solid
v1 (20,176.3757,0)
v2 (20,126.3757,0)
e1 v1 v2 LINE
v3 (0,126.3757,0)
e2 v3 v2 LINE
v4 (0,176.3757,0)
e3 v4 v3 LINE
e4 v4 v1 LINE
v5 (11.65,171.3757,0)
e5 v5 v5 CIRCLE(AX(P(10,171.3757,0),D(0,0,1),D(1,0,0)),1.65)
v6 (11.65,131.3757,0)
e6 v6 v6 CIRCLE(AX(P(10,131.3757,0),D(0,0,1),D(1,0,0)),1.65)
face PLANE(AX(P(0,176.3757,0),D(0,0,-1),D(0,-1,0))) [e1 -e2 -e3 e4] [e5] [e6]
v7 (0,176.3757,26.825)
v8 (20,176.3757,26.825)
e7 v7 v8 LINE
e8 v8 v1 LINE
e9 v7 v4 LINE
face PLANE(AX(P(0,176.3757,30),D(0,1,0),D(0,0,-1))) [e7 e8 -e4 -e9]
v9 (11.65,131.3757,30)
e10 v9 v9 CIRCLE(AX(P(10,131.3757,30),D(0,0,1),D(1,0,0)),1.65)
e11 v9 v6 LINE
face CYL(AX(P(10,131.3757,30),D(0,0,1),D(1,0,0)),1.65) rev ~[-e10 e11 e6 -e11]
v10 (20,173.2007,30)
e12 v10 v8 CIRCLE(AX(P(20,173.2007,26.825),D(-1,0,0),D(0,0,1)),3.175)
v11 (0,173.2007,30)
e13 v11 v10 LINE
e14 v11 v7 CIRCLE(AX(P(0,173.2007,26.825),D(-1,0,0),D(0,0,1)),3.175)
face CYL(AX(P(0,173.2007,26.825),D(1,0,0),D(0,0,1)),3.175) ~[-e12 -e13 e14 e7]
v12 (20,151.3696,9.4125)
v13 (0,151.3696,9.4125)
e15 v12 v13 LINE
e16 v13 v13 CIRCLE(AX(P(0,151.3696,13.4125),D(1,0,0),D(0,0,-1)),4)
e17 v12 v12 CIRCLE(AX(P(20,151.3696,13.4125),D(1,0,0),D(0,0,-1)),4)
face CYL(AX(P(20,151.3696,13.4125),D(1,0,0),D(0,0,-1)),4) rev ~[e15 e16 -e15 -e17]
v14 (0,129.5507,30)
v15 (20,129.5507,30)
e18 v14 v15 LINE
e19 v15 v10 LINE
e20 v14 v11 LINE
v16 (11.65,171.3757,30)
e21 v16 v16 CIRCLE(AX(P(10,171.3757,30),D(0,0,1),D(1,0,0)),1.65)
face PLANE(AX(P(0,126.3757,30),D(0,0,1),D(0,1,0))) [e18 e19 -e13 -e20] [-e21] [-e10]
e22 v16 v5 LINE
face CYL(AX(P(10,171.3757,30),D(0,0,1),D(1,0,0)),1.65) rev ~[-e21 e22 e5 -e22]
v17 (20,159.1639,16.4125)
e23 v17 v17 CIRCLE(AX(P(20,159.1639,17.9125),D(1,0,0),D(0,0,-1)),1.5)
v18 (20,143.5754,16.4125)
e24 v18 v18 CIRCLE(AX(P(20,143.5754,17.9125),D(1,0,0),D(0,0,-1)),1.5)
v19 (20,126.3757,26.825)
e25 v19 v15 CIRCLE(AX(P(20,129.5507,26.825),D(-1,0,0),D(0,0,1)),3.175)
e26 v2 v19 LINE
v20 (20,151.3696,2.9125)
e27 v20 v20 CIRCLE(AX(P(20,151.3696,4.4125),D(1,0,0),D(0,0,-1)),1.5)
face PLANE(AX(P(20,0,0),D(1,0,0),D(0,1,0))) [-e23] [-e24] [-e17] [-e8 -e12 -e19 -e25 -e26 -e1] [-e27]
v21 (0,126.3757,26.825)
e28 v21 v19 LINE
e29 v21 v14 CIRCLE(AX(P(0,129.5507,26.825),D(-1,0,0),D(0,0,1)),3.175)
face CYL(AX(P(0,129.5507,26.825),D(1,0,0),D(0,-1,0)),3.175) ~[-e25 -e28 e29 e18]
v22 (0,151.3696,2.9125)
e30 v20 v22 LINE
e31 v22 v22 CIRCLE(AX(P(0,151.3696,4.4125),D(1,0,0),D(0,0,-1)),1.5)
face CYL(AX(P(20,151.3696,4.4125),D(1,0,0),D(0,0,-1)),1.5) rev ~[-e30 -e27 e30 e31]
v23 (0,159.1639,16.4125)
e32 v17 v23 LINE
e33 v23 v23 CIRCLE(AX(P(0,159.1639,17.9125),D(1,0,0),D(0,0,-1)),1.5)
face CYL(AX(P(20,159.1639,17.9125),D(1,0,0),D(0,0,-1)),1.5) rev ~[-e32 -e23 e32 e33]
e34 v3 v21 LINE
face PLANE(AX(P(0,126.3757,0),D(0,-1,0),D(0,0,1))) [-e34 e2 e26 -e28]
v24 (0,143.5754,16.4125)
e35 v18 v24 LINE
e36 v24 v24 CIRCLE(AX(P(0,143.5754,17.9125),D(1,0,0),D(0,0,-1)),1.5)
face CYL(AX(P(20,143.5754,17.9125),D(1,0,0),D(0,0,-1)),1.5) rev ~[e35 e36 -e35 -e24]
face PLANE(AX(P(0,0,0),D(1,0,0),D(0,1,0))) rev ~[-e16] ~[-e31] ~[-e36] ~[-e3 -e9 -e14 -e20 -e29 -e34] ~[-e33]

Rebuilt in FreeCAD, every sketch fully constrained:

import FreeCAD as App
import Part
import Sketcher
Q = App.Units.Quantity


def edges_at(feature, points):
    """Names of the edges that pass closest to the given points."""
    edges = feature.Shape.Edges
    near = lambda p: min(range(len(edges)), key=lambda i: edges[i].distToShape(Part.Vertex(*p))[0])
    return sorted({f"Edge{near(p) + 1}" for p in points})


def add_polygon(sketch, points):
    """Adds a closed chain of lines whose ends are joined by coincident constraints."""
    first, n = sketch.GeometryCount, len(points)
    for a, b in zip(points, points[1:] + points[:1]):
        sketch.addGeometry(Part.LineSegment(App.Vector(*a, 0), App.Vector(*b, 0)), False)
    for i in range(n):
        sketch.addConstraint(Sketcher.Constraint("Coincident", first + i, 2, first + (i + 1) % n, 1))

doc = App.newDocument("Part")
body = doc.addObject("PartDesign::Body", "Body")

sketch1 = body.newObject("Sketcher::SketchObject", "Sketch")
sketch1.AttachmentSupport = (doc.getObject("YZ_Plane"), [""])
sketch1.MapMode = "FlatFace"
add_polygon(sketch1, [(126, 0), (176, 0), (176, 30), (126, 30)])
sketch1.addConstraint([
    Sketcher.Constraint("Horizontal", 0),
    Sketcher.Constraint("Vertical", 1),
    Sketcher.Constraint("Horizontal", 2),
    Sketcher.Constraint("Vertical", 3),
    Sketcher.Constraint("PointOnObject", 0, 2, -1),
    Sketcher.Constraint("DistanceX", 0, 1, 0, 2, Q("50 mm")),
    Sketcher.Constraint("DistanceY", 1, 1, 1, 2, Q("30 mm")),
    Sketcher.Constraint("DistanceX", -1, 1, 0, 2, Q("176.3757 mm")),
])
pad1 = body.newObject("PartDesign::Pad", "Pad")
pad1.Profile = sketch1
pad1.Length = 20
doc.recompute()

fillet = body.newObject("PartDesign::Fillet", "Fillet")
fillet.Base = (pad1, edges_at(pad1, [(10, 126.376, 30), (10, 176.376, 30)]))
fillet.Radius = 3.175

sketch2 = body.newObject("Sketcher::SketchObject", "Sketch001")
sketch2.AttachmentSupport = (doc.getObject("XY_Plane"), [""])
sketch2.MapMode = "FlatFace"
sketch2.AttachmentOffset = App.Placement(App.Vector(0, 0, 30), App.Rotation())
sketch2.addGeometry([
    Part.Circle(App.Vector(10, 171.4, 0), App.Vector(0, 0, 1), 1.6),
    Part.Circle(App.Vector(10, 131.4, 0), App.Vector(0, 0, 1), 1.6),
], False)
sketch2.addConstraint([
    Sketcher.Constraint("Equal", 0, 1),
    Sketcher.Constraint("Vertical", 0, 3, 1, 3),
    Sketcher.Constraint("Diameter", 0, Q("3.3 mm")),
    Sketcher.Constraint("DistanceX", -1, 1, 0, 3, Q("10 mm")),
    Sketcher.Constraint("DistanceY", 1, 3, 0, 3, Q("40 mm")),
    Sketcher.Constraint("DistanceY", -1, 1, 0, 3, Q("171.3757 mm")),
])
pocket1 = body.newObject("PartDesign::Pocket", "Pocket")
pocket1.Profile = sketch2
pocket1.Length = 30

sketch3 = body.newObject("Sketcher::SketchObject", "Sketch002")
sketch3.AttachmentSupport = (doc.getObject("YZ_Plane"), [""])
sketch3.MapMode = "FlatFace"
sketch3.AttachmentOffset = App.Placement(App.Vector(0, 0, 20), App.Rotation())
sketch3.addGeometry(Part.Circle(App.Vector(151.4, 13.4, 0), App.Vector(0, 0, 1), 4), False)
sketch3.addConstraint([
    Sketcher.Constraint("Diameter", 0, Q("8 mm")),
    Sketcher.Constraint("DistanceX", -1, 1, 0, 3, Q("151.3696 mm")),
    Sketcher.Constraint("DistanceY", -1, 1, 0, 3, Q("13.4125 mm")),
])
pocket2 = body.newObject("PartDesign::Pocket", "Pocket001")
pocket2.Profile = sketch3
pocket2.Type = "ThroughAll"

sketch4 = body.newObject("Sketcher::SketchObject", "Sketch003")
sketch4.AttachmentSupport = (doc.getObject("YZ_Plane"), [""])
sketch4.MapMode = "FlatFace"
sketch4.AttachmentOffset = App.Placement(App.Vector(0, 0, 20), App.Rotation())
sketch4.addGeometry([
    Part.Circle(App.Vector(151.4, 4.4, 0), App.Vector(0, 0, 1), 1.5),
    Part.Circle(App.Vector(159.2, 17.9, 0), App.Vector(0, 0, 1), 1.5),
    Part.Circle(App.Vector(143.6, 17.9, 0), App.Vector(0, 0, 1), 1.5),
], False)
sketch4.addConstraint([
    Sketcher.Constraint("Equal", 0, 1),
    Sketcher.Constraint("Equal", 1, 2),
    Sketcher.Constraint("Horizontal", 1, 3, 2, 3),
    Sketcher.Constraint("Diameter", 0, Q("3 mm")),
    Sketcher.Constraint("DistanceY", 0, 3, 1, 3, Q("13.5 mm")),
    Sketcher.Constraint("DistanceX", -1, 1, 1, 3, Q("159.164 mm")),
    Sketcher.Constraint("DistanceX", -1, 1, 0, 3, Q("151.3696 mm")),
    Sketcher.Constraint("DistanceY", -1, 1, 0, 3, Q("4.4125 mm")),
    Sketcher.Constraint("DistanceX", -1, 1, 2, 3, Q("143.5754 mm")),
])
pocket3 = body.newObject("PartDesign::Pocket", "Pocket002")
pocket3.Profile = sketch4
pocket3.Type = "ThroughAll"

doc.recompute()
